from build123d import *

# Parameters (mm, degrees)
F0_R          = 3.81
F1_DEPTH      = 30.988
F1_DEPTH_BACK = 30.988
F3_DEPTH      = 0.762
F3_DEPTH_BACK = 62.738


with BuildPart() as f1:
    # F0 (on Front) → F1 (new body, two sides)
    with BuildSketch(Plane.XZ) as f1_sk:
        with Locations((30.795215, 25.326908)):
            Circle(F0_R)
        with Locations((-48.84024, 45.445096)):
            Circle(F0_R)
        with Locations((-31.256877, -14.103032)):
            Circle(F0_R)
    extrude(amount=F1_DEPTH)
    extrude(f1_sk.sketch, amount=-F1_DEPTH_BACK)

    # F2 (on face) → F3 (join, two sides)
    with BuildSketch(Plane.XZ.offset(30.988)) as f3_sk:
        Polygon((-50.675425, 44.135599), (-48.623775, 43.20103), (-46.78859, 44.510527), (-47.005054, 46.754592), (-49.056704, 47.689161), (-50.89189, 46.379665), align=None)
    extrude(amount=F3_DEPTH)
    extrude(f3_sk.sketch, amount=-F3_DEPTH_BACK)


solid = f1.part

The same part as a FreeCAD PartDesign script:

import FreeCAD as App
import Part
import Sketcher

V = App.Vector
Q = App.Units.Quantity


def add_polygon(sketch, points):
    """Adds a closed chain of lines whose ends are joined by coincident constraints."""
    first, n = sketch.GeometryCount, len(points)
    for a, b in zip(points, points[1:] + points[:1]):
        sketch.addGeometry(Part.LineSegment(App.Vector(*a, 0), App.Vector(*b, 0)), False)
    for i in range(n):
        sketch.addConstraint(Sketcher.Constraint("Coincident", first + i, 2, first + (i + 1) % n, 1))

doc = App.newDocument("Part")
body = doc.addObject("PartDesign::Body", "Body")
body.AllowCompound = True

# Sketch on XZ plane
sketch1 = doc.addObject("Sketcher::SketchObject", "Sketch")
body.addObject(sketch1)
sketch1.AttachmentSupport = (doc.XZ_Plane, [""])
sketch1.MapMode = "FlatFace"
sketch1.addGeometry([
    Part.Circle(V(30.8, 25.3, 0), V(0, 0, 1), 3.8),
    Part.Circle(V(-48.8, 45.4, 0), V(0, 0, 1), 3.8),
    Part.Circle(V(-31.3, -14.1, 0), V(0, 0, 1), 3.8),
], False)
sketch1.addConstraint([
    Sketcher.Constraint("Equal", 0, 1),
    Sketcher.Constraint("Equal", 1, 2),
    Sketcher.Constraint("Diameter", 0, Q("0.3 in")),
    Sketcher.Constraint("DistanceX", 1, 3, -1, 1, 48.84024),
    Sketcher.Constraint("DistanceY", 0, 3, 1, 3, 20.118188),
    Sketcher.Constraint("DistanceY", 2, 3, 0, 3, 39.42994),
    Sketcher.Constraint("DistanceX", -1, 1, 0, 3, 30.795215),
    Sketcher.Constraint("DistanceY", -1, 1, 0, 3, 25.326908),
    Sketcher.Constraint("DistanceX", 2, 3, -1, 1, 31.256877),
])
pad1 = doc.addObject("PartDesign::Pad", "Pad")
body.addObject(pad1)
pad1.Profile = sketch1
pad1.Type = "TwoLengths"
pad1.Length = Q("1.22 in")
pad1.Length2 = Q("1.22 in")

# Sketch on XZ plane
sketch2 = doc.addObject("Sketcher::SketchObject", "Sketch001")
body.addObject(sketch2)
sketch2.AttachmentSupport = (doc.XZ_Plane, [""])
sketch2.MapMode = "FlatFace"
sketch2.AttachmentOffset = App.Placement(V(0, 0, 1.22 * 25.4), App.Rotation())
add_polygon(sketch2, [(-50.7, 44.1), (-48.6, 43.2), (-46.8, 44.5), (-47, 46.8), (-49.1, 47.7), (-50.9, 46.4)])  # lines 0-5
sketch2.addConstraint([
    Sketcher.Constraint("Parallel", 0, 3),
    Sketcher.Constraint("Parallel", 1, 4),
    Sketcher.Constraint("Parallel", 2, 5),
    Sketcher.Constraint("Equal", 0, 1),
    Sketcher.Constraint("Equal", 1, 2),
    Sketcher.Constraint("Equal", 2, 3),
    Sketcher.Constraint("DistanceY", -1, 1, 5, 2, 44.135599),
    Sketcher.Constraint("DistanceX", 4, 2, 1, 2, 4.1033),
    Sketcher.Constraint("Distance", 0, 2.254482),
    Sketcher.Constraint("DistanceY", -1, 1, 0, 2, 43.20103),
    Sketcher.Constraint("DistanceX", 1, 2, -1, 1, 46.78859),
    Sketcher.Constraint("DistanceY", -1, 1, 3, 2, 47.689161),
])
pad2 = doc.addObject("PartDesign::Pad", "Pad001")
body.addObject(pad2)
pad2.Profile = sketch2
pad2.Type = "TwoLengths"
pad2.Length = Q("0.03 in")
pad2.Length2 = Q("2.47 in")

doc.recompute()
